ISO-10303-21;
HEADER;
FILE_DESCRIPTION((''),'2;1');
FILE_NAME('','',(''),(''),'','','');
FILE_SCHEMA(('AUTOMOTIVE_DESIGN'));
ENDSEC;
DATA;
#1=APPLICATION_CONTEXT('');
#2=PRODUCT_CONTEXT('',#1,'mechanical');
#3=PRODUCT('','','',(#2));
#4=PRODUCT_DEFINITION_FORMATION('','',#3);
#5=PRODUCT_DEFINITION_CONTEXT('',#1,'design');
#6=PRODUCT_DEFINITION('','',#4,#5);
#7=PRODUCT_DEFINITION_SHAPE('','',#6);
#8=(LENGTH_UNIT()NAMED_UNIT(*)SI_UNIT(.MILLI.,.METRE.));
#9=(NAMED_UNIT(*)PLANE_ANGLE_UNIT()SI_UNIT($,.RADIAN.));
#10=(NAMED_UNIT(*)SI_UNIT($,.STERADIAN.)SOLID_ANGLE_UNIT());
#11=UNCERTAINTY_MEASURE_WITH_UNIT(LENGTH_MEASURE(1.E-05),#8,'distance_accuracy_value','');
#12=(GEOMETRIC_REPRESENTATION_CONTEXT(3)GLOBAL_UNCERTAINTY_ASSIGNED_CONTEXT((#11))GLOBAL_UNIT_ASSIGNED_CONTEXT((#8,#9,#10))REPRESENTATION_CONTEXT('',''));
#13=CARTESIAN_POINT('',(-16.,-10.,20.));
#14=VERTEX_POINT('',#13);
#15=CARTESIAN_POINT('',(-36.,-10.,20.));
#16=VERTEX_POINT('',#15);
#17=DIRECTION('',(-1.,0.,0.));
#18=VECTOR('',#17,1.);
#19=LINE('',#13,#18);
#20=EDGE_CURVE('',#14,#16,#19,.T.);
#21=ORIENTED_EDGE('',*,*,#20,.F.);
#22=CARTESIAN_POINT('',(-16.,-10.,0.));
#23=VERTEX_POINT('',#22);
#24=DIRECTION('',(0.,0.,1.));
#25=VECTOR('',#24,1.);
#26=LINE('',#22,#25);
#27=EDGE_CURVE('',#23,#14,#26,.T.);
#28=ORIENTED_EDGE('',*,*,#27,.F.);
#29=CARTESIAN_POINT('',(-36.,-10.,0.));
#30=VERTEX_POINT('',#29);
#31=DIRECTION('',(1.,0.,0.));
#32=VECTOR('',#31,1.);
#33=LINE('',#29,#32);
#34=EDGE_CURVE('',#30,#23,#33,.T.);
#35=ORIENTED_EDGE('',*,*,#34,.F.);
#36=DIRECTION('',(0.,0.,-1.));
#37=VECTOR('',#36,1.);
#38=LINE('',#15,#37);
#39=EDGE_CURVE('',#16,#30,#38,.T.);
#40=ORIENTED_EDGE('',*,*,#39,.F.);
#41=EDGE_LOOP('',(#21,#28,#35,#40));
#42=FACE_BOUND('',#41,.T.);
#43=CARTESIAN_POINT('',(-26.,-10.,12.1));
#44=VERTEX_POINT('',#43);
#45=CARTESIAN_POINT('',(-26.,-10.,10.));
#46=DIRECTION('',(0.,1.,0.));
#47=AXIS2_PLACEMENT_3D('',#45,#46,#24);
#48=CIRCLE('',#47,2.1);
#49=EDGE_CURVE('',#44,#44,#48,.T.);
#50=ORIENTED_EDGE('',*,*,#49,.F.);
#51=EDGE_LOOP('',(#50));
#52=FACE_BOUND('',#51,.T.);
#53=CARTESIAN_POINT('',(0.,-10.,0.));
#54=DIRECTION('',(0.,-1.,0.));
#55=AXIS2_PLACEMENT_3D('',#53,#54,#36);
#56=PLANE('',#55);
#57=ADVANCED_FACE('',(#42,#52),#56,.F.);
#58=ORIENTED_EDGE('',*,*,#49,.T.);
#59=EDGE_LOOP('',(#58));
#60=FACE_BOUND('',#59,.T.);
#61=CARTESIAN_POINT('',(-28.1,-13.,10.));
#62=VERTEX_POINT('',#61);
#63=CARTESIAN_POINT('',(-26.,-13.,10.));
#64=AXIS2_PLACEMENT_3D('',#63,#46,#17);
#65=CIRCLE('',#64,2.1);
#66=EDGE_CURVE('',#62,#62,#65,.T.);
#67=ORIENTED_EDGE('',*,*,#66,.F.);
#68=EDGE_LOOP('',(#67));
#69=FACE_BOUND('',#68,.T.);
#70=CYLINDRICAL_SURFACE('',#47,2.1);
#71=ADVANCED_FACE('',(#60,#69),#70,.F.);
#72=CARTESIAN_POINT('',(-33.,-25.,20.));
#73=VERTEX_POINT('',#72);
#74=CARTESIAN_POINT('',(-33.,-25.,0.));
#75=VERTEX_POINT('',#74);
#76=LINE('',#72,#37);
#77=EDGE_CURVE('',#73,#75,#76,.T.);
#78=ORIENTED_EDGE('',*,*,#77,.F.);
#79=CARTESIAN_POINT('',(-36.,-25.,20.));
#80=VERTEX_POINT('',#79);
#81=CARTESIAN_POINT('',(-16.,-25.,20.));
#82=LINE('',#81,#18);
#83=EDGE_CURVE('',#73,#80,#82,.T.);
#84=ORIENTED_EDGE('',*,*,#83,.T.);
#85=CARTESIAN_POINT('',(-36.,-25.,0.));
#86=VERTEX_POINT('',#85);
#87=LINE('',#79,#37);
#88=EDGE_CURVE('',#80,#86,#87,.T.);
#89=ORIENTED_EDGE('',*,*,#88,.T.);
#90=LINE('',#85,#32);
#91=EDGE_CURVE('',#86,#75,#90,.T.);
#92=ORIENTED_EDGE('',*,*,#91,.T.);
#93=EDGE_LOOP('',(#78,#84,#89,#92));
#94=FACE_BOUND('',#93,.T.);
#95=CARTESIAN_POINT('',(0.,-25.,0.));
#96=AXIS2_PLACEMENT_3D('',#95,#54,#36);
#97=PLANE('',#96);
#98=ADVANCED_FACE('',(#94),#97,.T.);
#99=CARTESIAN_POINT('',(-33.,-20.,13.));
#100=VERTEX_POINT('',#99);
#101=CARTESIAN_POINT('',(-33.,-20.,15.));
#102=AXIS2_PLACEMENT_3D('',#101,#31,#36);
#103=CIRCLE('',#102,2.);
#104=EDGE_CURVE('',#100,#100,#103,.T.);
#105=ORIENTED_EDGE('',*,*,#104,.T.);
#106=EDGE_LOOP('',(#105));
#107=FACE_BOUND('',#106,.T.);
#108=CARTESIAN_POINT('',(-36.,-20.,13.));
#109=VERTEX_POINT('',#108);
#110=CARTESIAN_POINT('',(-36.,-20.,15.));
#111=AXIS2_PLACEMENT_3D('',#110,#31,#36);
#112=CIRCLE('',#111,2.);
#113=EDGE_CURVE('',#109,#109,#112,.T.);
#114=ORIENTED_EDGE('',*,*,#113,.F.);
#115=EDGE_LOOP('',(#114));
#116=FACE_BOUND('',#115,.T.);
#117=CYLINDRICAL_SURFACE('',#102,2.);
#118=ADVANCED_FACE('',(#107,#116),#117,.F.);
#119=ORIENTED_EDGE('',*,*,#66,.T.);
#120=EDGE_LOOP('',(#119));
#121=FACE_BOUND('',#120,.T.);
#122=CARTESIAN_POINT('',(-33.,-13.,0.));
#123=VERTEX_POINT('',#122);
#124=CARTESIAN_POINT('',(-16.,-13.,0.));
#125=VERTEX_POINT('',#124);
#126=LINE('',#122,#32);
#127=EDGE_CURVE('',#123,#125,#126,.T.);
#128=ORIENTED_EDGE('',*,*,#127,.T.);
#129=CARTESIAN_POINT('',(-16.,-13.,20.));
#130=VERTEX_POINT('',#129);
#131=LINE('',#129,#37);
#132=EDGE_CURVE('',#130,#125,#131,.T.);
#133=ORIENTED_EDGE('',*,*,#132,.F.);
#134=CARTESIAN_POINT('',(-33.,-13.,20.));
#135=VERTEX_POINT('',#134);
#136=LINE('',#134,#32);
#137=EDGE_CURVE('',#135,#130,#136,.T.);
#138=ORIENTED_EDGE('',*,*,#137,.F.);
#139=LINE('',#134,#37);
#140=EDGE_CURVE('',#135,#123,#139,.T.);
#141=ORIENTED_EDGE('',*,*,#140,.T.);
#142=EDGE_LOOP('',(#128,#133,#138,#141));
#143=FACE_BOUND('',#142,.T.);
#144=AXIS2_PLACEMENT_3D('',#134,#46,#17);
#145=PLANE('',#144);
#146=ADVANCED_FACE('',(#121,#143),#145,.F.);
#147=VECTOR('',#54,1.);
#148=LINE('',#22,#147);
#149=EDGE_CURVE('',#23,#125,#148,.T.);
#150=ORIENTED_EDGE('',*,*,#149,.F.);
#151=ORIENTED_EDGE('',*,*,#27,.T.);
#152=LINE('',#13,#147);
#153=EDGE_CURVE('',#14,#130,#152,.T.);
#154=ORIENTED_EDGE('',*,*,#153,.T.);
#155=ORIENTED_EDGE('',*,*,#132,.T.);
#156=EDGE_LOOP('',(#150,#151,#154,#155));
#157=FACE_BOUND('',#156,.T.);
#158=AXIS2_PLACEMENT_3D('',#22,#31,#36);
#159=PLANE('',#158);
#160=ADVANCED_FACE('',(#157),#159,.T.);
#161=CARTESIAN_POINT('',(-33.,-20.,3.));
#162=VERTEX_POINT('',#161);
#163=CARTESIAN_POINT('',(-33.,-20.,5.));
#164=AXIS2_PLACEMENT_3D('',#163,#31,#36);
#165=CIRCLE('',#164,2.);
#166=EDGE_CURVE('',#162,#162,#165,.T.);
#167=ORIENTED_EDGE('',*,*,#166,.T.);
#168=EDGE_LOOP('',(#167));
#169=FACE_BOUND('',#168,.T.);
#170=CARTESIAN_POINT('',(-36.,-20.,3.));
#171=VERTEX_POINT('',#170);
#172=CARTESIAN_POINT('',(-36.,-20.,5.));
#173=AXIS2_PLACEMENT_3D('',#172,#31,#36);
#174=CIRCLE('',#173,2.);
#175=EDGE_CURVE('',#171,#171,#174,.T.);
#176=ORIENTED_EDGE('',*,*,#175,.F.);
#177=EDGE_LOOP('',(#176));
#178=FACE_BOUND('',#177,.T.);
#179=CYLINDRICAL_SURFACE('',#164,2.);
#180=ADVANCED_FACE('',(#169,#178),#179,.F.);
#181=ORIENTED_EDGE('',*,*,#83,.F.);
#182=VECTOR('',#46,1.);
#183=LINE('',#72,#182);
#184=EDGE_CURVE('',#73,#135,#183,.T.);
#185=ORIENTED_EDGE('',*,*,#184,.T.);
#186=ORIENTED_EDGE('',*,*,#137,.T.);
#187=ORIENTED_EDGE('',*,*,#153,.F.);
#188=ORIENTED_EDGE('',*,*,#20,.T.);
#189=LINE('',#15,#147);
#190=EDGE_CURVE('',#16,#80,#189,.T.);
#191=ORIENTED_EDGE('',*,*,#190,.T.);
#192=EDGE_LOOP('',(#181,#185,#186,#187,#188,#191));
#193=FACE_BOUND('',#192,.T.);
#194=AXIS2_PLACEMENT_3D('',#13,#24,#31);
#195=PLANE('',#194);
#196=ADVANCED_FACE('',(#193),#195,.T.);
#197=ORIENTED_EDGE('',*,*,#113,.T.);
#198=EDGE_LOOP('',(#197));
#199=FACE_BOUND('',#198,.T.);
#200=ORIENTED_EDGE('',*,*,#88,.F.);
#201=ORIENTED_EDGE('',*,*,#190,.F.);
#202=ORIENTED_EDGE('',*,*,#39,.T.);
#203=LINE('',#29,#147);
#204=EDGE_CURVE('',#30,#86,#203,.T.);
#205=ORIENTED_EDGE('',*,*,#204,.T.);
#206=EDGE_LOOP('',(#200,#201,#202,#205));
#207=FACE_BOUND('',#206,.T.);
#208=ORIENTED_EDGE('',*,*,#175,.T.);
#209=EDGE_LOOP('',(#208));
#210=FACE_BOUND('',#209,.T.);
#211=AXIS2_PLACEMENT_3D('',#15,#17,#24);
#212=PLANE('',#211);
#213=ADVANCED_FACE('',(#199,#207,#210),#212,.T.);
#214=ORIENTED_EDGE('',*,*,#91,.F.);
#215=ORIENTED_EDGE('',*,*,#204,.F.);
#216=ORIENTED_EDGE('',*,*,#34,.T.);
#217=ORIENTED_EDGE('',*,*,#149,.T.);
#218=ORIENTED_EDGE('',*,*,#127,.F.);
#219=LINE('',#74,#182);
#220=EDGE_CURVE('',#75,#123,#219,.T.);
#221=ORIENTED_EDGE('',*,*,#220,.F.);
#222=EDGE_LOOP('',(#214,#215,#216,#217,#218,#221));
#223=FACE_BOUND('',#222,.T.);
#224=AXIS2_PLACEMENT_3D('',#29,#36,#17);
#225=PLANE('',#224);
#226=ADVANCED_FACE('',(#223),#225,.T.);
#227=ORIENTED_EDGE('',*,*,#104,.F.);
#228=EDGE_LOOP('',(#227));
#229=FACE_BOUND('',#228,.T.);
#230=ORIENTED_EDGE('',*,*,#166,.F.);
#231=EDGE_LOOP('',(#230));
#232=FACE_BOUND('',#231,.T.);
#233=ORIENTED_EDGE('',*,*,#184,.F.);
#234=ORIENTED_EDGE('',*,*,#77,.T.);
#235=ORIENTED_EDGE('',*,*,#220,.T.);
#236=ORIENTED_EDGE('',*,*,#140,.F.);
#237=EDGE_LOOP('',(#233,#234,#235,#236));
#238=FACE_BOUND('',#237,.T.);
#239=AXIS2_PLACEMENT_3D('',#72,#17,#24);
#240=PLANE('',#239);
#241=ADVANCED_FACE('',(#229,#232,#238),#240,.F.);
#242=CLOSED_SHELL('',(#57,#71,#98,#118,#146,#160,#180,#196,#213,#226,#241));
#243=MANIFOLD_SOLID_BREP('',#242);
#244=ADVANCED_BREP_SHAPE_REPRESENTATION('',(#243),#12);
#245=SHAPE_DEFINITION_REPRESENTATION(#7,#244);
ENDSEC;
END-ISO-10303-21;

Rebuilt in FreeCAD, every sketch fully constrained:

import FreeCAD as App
import Part
import Sketcher
Q = App.Units.Quantity


def add_polygon(sketch, points):
    """Adds a closed chain of lines whose ends are joined by coincident constraints."""
    first, n = sketch.GeometryCount, len(points)
    for a, b in zip(points, points[1:] + points[:1]):
        sketch.addGeometry(Part.LineSegment(App.Vector(*a, 0), App.Vector(*b, 0)), False)
    for i in range(n):
        sketch.addConstraint(Sketcher.Constraint("Coincident", first + i, 2, first + (i + 1) % n, 1))

doc = App.newDocument("Part")
body = doc.addObject("PartDesign::Body", "Body")

# Sketch on XZ plane
sketch1 = doc.addObject("Sketcher::SketchObject", "Sketch")
body.addObject(sketch1)
sketch1.AttachmentSupport = (doc.XZ_Plane, [""])
sketch1.MapMode = "FlatFace"
sketch1.AttachmentOffset = App.Placement(App.Vector(0, 0, 25), App.Rotation())
add_polygon(sketch1, [(-36, 20), (-36, 0), (-16, 0), (-16, 20)])  # lines 0-3
sketch1.addConstraint(Sketcher.Constraint("Vertical", 0))
sketch1.addConstraint(Sketcher.Constraint("Horizontal", 1))
sketch1.addConstraint(Sketcher.Constraint("Vertical", 2))
sketch1.addConstraint(Sketcher.Constraint("Horizontal", 3))
sketch1.addConstraint(Sketcher.Constraint("PointOnObject", 0, 2, -1))
sketch1.addConstraint(Sketcher.Constraint("Equal", 3, 0))
sketch1.addConstraint(Sketcher.Constraint("DistanceX", 1, 1, 1, 2, Q("20 mm")))
sketch1.addConstraint(Sketcher.Constraint("DistanceX", 0, 2, -1, 1, Q("36 mm")))
pad1 = doc.addObject("PartDesign::Pad", "Pad")
body.addObject(pad1)
pad1.Profile = sketch1
pad1.Length = 15
pad1.Reversed = True

# Sketch on XY plane
sketch2 = doc.addObject("Sketcher::SketchObject", "Sketch001")
body.addObject(sketch2)
sketch2.AttachmentSupport = (doc.XY_Plane, [""])
sketch2.MapMode = "FlatFace"
add_polygon(sketch2, [(-16, -13), (-16, -25), (-33, -25), (-33, -13)])  # lines 0-3
sketch2.addConstraint(Sketcher.Constraint("Vertical", 0))
sketch2.addConstraint(Sketcher.Constraint("Horizontal", 1))
sketch2.addConstraint(Sketcher.Constraint("Vertical", 2))
sketch2.addConstraint(Sketcher.Constraint("Horizontal", 3))
sketch2.addConstraint(Sketcher.Constraint("DistanceX", 1, 2, 1, 1, Q("17 mm")))
sketch2.addConstraint(Sketcher.Constraint("DistanceY", 0, 2, 0, 1, Q("12 mm")))
sketch2.addConstraint(Sketcher.Constraint("DistanceX", 0, 2, -1, 1, Q("16 mm")))
sketch2.addConstraint(Sketcher.Constraint("DistanceY", 0, 2, -1, 1, Q("25 mm")))
pocket1 = doc.addObject("PartDesign::Pocket", "Pocket")
body.addObject(pocket1)
pocket1.Profile = sketch2
pocket1.Type = "ThroughAll"
pocket1.Reversed = True

# Sketch on XZ plane
sketch3 = doc.addObject("Sketcher::SketchObject", "Sketch002")
body.addObject(sketch3)
sketch3.AttachmentSupport = (doc.XZ_Plane, [""])
sketch3.MapMode = "FlatFace"
sketch3.AttachmentOffset = App.Placement(App.Vector(0, 0, 10), App.Rotation())
sketch3.addGeometry(Part.Circle(App.Vector(-26, 10, 0), App.Vector(0, 0, 1), 2.1), False)
sketch3.addConstraint(Sketcher.Constraint("Diameter", 0, Q("4.2 mm")))
sketch3.addConstraint(Sketcher.Constraint("DistanceX", 0, 3, -1, 1, Q("26 mm")))
sketch3.addConstraint(Sketcher.Constraint("DistanceY", -1, 1, 0, 3, Q("10 mm")))
doc.recompute()
hole = doc.addObject("PartDesign::Hole", "Hole")
body.addObject(hole)
hole.Profile = sketch3
hole.ThreadType = "None"
hole.Diameter = 4.2
hole.DepthType = "Dimension"
hole.Depth = 15
hole.DrillPoint = "Flat"
hole.Reversed = True

# Sketch on YZ plane
sketch4 = doc.addObject("Sketcher::SketchObject", "Sketch003")
body.addObject(sketch4)
sketch4.AttachmentSupport = (doc.YZ_Plane, [""])
sketch4.MapMode = "FlatFace"
sketch4.AttachmentOffset = App.Placement(App.Vector(0, 0, -33), App.Rotation())
sketch4.addGeometry(Part.Circle(App.Vector(-20, 15, 0), App.Vector(0, 0, 1), 2), False)
sketch4.addGeometry(Part.Circle(App.Vector(-20, 5, 0), App.Vector(0, 0, 1), 2), False)
sketch4.addConstraint(Sketcher.Constraint("Equal", 0, 1))
sketch4.addConstraint(Sketcher.Constraint("Vertical", 0, 3, 1, 3))
sketch4.addConstraint(Sketcher.Constraint("Diameter", 0, Q("4 mm")))
sketch4.addConstraint(Sketcher.Constraint("DistanceX", 0, 3, -1, 1, Q("20 mm")))
sketch4.addConstraint(Sketcher.Constraint("DistanceY", -1, 1, 0, 3, Q("15 mm")))
sketch4.addConstraint(Sketcher.Constraint("DistanceY", -1, 1, 1, 3, Q("5 mm")))
doc.recompute()
hole2 = doc.addObject("PartDesign::Hole", "Hole001")
body.addObject(hole2)
hole2.Profile = sketch4
hole2.ThreadType = "None"
hole2.Diameter = 4
hole2.DepthType = "ThroughAll"

doc.recompute()
